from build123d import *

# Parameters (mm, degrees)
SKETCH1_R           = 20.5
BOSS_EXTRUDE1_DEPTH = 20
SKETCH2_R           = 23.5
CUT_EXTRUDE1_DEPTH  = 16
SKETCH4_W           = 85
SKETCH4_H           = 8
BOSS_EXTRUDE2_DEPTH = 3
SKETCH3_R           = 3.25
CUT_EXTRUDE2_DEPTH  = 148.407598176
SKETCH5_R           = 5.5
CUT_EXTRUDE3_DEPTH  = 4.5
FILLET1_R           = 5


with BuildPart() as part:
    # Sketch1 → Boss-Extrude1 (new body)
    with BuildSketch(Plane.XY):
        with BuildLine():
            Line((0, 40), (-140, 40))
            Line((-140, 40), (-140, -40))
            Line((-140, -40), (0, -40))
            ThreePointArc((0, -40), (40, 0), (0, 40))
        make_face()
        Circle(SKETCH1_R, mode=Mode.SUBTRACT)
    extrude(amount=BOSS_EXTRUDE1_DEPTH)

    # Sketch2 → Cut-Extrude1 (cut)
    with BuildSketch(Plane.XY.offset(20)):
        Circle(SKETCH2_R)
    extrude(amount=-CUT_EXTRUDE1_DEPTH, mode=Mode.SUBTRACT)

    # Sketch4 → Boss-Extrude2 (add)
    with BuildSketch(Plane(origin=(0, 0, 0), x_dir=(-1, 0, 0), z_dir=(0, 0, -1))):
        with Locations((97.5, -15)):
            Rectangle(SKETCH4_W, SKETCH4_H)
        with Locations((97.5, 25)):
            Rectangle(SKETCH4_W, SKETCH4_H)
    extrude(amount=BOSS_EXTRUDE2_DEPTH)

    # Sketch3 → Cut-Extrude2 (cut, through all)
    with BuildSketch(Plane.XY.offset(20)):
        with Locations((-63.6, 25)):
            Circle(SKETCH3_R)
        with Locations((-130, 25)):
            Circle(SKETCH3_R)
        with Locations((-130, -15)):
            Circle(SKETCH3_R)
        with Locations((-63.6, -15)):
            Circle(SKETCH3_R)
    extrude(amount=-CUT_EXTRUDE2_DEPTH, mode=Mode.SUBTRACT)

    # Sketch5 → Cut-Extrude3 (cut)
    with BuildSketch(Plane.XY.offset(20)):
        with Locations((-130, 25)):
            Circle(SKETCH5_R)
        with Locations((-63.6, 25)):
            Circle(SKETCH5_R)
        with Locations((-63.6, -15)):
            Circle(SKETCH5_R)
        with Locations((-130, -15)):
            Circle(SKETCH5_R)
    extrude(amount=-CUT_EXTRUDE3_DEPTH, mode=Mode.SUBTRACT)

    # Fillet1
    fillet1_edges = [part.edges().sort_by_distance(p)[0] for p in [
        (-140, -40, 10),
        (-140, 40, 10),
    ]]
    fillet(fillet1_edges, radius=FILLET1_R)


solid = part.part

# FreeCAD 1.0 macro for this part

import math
import FreeCAD as App
import Part
import Sketcher
from FreeCAD import Vector


def edges_at(feature, points):
    """Names of the edges that pass closest to the given points."""
    edges = feature.Shape.Edges
    near = lambda p: min(range(len(edges)), key=lambda i: edges[i].distToShape(Part.Vertex(*p))[0])
    return sorted({f"Edge{near(p) + 1}" for p in points})

doc = App.newDocument("Part")
body = doc.addObject("PartDesign::Body", "Body")

# Sketch on XY plane
sketch1 = doc.addObject("Sketcher::SketchObject", "Sketch")
body.addObject(sketch1)
sketch1.AttachmentSupport = (doc.XY_Plane, [""])
sketch1.MapMode = "FlatFace"
sketch1.addGeometry([
    Part.LineSegment(Vector(0, 40, 0), Vector(-140, 40, 0)),  # 0
    Part.LineSegment(Vector(-140, 40, 0), Vector(-140, -40, 0)),  # 1
    Part.LineSegment(Vector(-140, -40, 0), Vector(0, -40, 0)),  # 2
    Part.ArcOfCircle(Part.Circle(Vector(0, 0, 0), Vector(0, 0, 1), 40), math.radians(-90), math.radians(90)),  # 3
    Part.Circle(Vector(0, 0, 0), Vector(0, 0, 1), 20),  # 4
], False)
sketch1.addConstraint([
    Sketcher.Constraint("Coincident", 0, 2, 1, 1),
    Sketcher.Constraint("Coincident", 1, 2, 2, 1),
    Sketcher.Constraint("Tangent", 2, 2, 3, 1),
    Sketcher.Constraint("Tangent", 3, 2, 0, 1),
    Sketcher.Constraint("Horizontal", 0),
    Sketcher.Constraint("Vertical", 1),
    Sketcher.Constraint("Horizontal", 2),
    Sketcher.Constraint("Coincident", 3, 3, -1, 1),
    Sketcher.Constraint("Coincident", 4, 3, -1, 1),
    Sketcher.Constraint("Diameter", 4, 41.0),
    Sketcher.Constraint("Radius", 3, 40.0),
    Sketcher.Constraint("DistanceX", 0, 2, 0, 1, 140.0),
])
pad1 = doc.addObject("PartDesign::Pad", "Pad")
body.addObject(pad1)
pad1.Profile = sketch1
pad1.Length = 20

# Sketch on XY plane
sketch2 = doc.addObject("Sketcher::SketchObject", "Sketch001")
body.addObject(sketch2)
sketch2.AttachmentSupport = (doc.XY_Plane, [""])
sketch2.MapMode = "FlatFace"
sketch2.AttachmentOffset = App.Placement(Vector(0, 0, 20), App.Rotation())
sketch2.addGeometry(Part.Circle(Vector(0, 0, 0), Vector(0, 0, 1), 24), False)
sketch2.addConstraint([
    Sketcher.Constraint("Coincident", 0, 3, -1, 1),
    Sketcher.Constraint("Diameter", 0, 47.0),
])
pocket1 = doc.addObject("PartDesign::Pocket", "Pocket")
body.addObject(pocket1)
pocket1.Profile = sketch2
pocket1.Length = 16

# Sketch on XY plane
sketch3 = doc.addObject("Sketcher::SketchObject", "Sketch002")
body.addObject(sketch3)
sketch3.AttachmentSupport = (doc.XY_Plane, [""])
sketch3.MapMode = "FlatFace"
sketch3.addGeometry([
    Part.LineSegment(Vector(-55, -11, 0), Vector(-55, -19, 0)),  # 0
    Part.LineSegment(Vector(-55, -19, 0), Vector(-140, -19, 0)),  # 1
    Part.LineSegment(Vector(-140, -19, 0), Vector(-140, -11, 0)),  # 2
    Part.LineSegment(Vector(-140, -11, 0), Vector(-55, -11, 0)),  # 3
    Part.LineSegment(Vector(-55, 29, 0), Vector(-55, 21, 0)),  # 4
    Part.LineSegment(Vector(-55, 21, 0), Vector(-140, 21, 0)),  # 5
    Part.LineSegment(Vector(-140, 21, 0), Vector(-140, 29, 0)),  # 6
    Part.LineSegment(Vector(-140, 29, 0), Vector(-55, 29, 0)),  # 7
], False)
sketch3.addConstraint([
    Sketcher.Constraint("Coincident", 0, 2, 1, 1),
    Sketcher.Constraint("Coincident", 1, 2, 2, 1),
    Sketcher.Constraint("Coincident", 2, 2, 3, 1),
    Sketcher.Constraint("Coincident", 3, 2, 0, 1),
    Sketcher.Constraint("Coincident", 4, 2, 5, 1),
    Sketcher.Constraint("Coincident", 5, 2, 6, 1),
    Sketcher.Constraint("Coincident", 6, 2, 7, 1),
    Sketcher.Constraint("Coincident", 7, 2, 4, 1),
    Sketcher.Constraint("Vertical", 0),
    Sketcher.Constraint("Horizontal", 1),
    Sketcher.Constraint("Vertical", 2),
    Sketcher.Constraint("Horizontal", 3),
    Sketcher.Constraint("Vertical", 4),
    Sketcher.Constraint("Horizontal", 5),
    Sketcher.Constraint("Vertical", 6),
    Sketcher.Constraint("Horizontal", 7),
    Sketcher.Constraint("Vertical", 3, 2, 4, 2),
    Sketcher.Constraint("Vertical", 2, 2, 5, 2),
    Sketcher.Constraint("Equal", 2, 4),
    Sketcher.Constraint("DistanceX", 1, 2, 1, 1, 85.0),
    Sketcher.Constraint("DistanceY", 0, 2, 0, 1, 8.0),
    Sketcher.Constraint("DistanceX", 0, 2, -1, 1, 55.0),
    Sketcher.Constraint("DistanceY", 0, 2, -1, 1, 19.0),
    Sketcher.Constraint("DistanceY", -1, 1, 4, 2, 21.0),
])
pad2 = doc.addObject("PartDesign::Pad", "Pad001")
body.addObject(pad2)
pad2.Profile = sketch3
pad2.Length = 3
pad2.Reversed = True

# Sketch on XY plane
sketch4 = doc.addObject("Sketcher::SketchObject", "Sketch003")
body.addObject(sketch4)
sketch4.AttachmentSupport = (doc.XY_Plane, [""])
sketch4.MapMode = "FlatFace"
sketch4.AttachmentOffset = App.Placement(Vector(0, 0, 20), App.Rotation())
sketch4.addGeometry([
    Part.Circle(Vector(-63.6, 25, 0), Vector(0, 0, 1), 3.2),
    Part.Circle(Vector(-130, 25, 0), Vector(0, 0, 1), 3.2),
    Part.Circle(Vector(-130, -15, 0), Vector(0, 0, 1), 3.2),
    Part.Circle(Vector(-63.6, -15, 0), Vector(0, 0, 1), 3.2),
], False)
sketch4.addConstraint([
    Sketcher.Constraint("Equal", 0, 1),
    Sketcher.Constraint("Equal", 1, 2),
    Sketcher.Constraint("Equal", 2, 3),
    Sketcher.Constraint("Horizontal", 0, 3, 1, 3),
    Sketcher.Constraint("Horizontal", 2, 3, 3, 3),
    Sketcher.Constraint("Vertical", 1, 3, 2, 3),
    Sketcher.Constraint("Vertical", 0, 3, 3, 3),
    Sketcher.Constraint("Diameter", 0, 6.5),
    Sketcher.Constraint("DistanceY", -1, 1, 0, 3, 25.0),
    Sketcher.Constraint("DistanceX", 1, 3, -1, 1, 130.0),
    Sketcher.Constraint("DistanceY", 2, 3, -1, 1, 15.0),
    Sketcher.Constraint("DistanceX", 0, 3, -1, 1, 63.6),
])
pocket2 = doc.addObject("PartDesign::Pocket", "Pocket001")
body.addObject(pocket2)
pocket2.Profile = sketch4
pocket2.Type = "ThroughAll"

# Sketch on XY plane
sketch5 = doc.addObject("Sketcher::SketchObject", "Sketch004")
body.addObject(sketch5)
sketch5.AttachmentSupport = (doc.XY_Plane, [""])
sketch5.MapMode = "FlatFace"
sketch5.AttachmentOffset = App.Placement(Vector(0, 0, 20), App.Rotation())
sketch5.addGeometry([
    Part.Circle(Vector(-130, 25, 0), Vector(0, 0, 1), 6),
    Part.Circle(Vector(-64, 25, 0), Vector(0, 0, 1), 6),
    Part.Circle(Vector(-64, -15, 0), Vector(0, 0, 1), 6),
    Part.Circle(Vector(-130, -15, 0), Vector(0, 0, 1), 6),
], False)
sketch5.addConstraint([
    Sketcher.Constraint("Equal", 0, 1),
    Sketcher.Constraint("Equal", 1, 2),
    Sketcher.Constraint("Equal", 2, 3),
    Sketcher.Constraint("Horizontal", 0, 3, 1, 3),
    Sketcher.Constraint("Horizontal", 2, 3, 3, 3),
    Sketcher.Constraint("Vertical", 1, 3, 2, 3),
    Sketcher.Constraint("Vertical", 0, 3, 3, 3),
    Sketcher.Constraint("Diameter", 0, 11.0),
    Sketcher.Constraint("DistanceX", 0, 3, -1, 1, 130.0),
    Sketcher.Constraint("DistanceY", -1, 1, 0, 3, 25.0),
    Sketcher.Constraint("DistanceY", 2, 3, -1, 1, 15.0),
    Sketcher.Constraint("DistanceX", 1, 3, -1, 1, 63.6),
])
pocket3 = doc.addObject("PartDesign::Pocket", "Pocket002")
body.addObject(pocket3)
pocket3.Profile = sketch5
pocket3.Length = 4.5
doc.recompute()

fillet = doc.addObject("PartDesign::Fillet", "Fillet")
body.addObject(fillet)
fillet.Base = (pocket3, edges_at(pocket3, [(-140, -40, 10), (-140, 40, 10)]))
fillet.Radius = 5

doc.recompute()
